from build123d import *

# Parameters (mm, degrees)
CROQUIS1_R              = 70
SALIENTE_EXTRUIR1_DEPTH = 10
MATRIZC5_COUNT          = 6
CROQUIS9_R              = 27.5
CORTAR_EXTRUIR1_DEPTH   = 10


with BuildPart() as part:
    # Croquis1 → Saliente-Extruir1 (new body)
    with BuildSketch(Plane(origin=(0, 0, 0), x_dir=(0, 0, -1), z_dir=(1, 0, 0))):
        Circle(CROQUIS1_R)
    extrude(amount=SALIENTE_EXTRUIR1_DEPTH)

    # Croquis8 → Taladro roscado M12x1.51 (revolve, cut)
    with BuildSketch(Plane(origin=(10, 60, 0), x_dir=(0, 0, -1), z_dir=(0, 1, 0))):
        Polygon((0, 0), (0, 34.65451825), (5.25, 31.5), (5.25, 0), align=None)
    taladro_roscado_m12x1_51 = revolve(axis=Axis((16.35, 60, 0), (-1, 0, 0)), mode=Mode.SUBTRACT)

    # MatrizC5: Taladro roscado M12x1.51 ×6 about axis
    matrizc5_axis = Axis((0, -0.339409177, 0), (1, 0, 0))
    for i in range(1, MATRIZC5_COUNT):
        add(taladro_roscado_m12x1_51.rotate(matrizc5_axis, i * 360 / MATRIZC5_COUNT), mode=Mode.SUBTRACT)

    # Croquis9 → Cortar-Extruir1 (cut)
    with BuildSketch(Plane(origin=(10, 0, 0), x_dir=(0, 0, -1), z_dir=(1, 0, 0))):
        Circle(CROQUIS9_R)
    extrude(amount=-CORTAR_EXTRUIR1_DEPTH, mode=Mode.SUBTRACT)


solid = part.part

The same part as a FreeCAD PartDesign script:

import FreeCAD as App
import Part
import Sketcher
from FreeCAD import Vector
Q = App.Units.Quantity


def add_polygon(sketch, points):
    """Adds a closed chain of lines whose ends are joined by coincident constraints."""
    first, n = sketch.GeometryCount, len(points)
    for a, b in zip(points, points[1:] + points[:1]):
        sketch.addGeometry(Part.LineSegment(App.Vector(*a, 0), App.Vector(*b, 0)), False)
    for i in range(n):
        sketch.addConstraint(Sketcher.Constraint("Coincident", first + i, 2, first + (i + 1) % n, 1))

doc = App.newDocument("Part")
body = doc.addObject("PartDesign::Body", "Body")

# Sketch on YZ plane
sketch1 = doc.addObject("Sketcher::SketchObject", "Sketch")
body.addObject(sketch1)
sketch1.AttachmentSupport = (doc.YZ_Plane, [""])
sketch1.MapMode = "FlatFace"
sketch1.addGeometry(Part.Circle(Vector(0, 0, 0), Vector(0, 0, 1), 70), False)
sketch1.addConstraint(Sketcher.Constraint("Coincident", 0, 3, -1, 1))
sketch1.addConstraint(Sketcher.Constraint("Diameter", 0, Q("140 mm")))
pad1 = doc.addObject("PartDesign::Pad", "Pad")
body.addObject(pad1)
pad1.Profile = sketch1
pad1.Length = 10

# Sketch on XZ plane
sketch2 = doc.addObject("Sketcher::SketchObject", "Sketch001")
body.addObject(sketch2)
sketch2.AttachmentSupport = (doc.XZ_Plane, [""])
sketch2.MapMode = "FlatFace"
sketch2.AttachmentOffset = App.Placement(Vector(0, 0, -60), App.Rotation())
add_polygon(sketch2, [(-25, 0), (10, 0), (10, -5), (-22, -5)])  # lines 0-3
sketch2.addConstraint(Sketcher.Constraint("Horizontal", 0))
sketch2.addConstraint(Sketcher.Constraint("Vertical", 1))
sketch2.addConstraint(Sketcher.Constraint("Horizontal", 2))
sketch2.addConstraint(Sketcher.Constraint("PointOnObject", 0, 2, -1))
sketch2.addConstraint(Sketcher.Constraint("Angle", 3, Q("121 deg")))
sketch2.addConstraint(Sketcher.Constraint("DistanceX", 2, 2, 2, 1, Q("31.5 mm")))
sketch2.addConstraint(Sketcher.Constraint("DistanceX", -1, 1, 0, 2, Q("10 mm")))
sketch2.addConstraint(Sketcher.Constraint("DistanceY", 1, 2, 1, 1, Q("5.25 mm")))
groove = doc.addObject("PartDesign::Groove", "Groove")
body.addObject(groove)
groove.Profile = sketch2
groove.ReferenceAxis = (sketch2, ["H_Axis"])
groove.Angle = 360
doc.recompute()

datumline = doc.addObject("PartDesign::Line", "DatumLine")
body.addObject(datumline)
datumline.Placement = App.Placement(Vector(0, -0.339409, 0), App.Rotation(Vector(0, 0, 1), Vector(1, 0, 0)))
polarpattern = doc.addObject("PartDesign::PolarPattern", "PolarPattern")
body.addObject(polarpattern)
polarpattern.Originals = [groove]
polarpattern.Axis = (datumline, [""])
polarpattern.Angle = 360
polarpattern.Occurrences = 6
body.Tip = polarpattern

# Sketch on YZ plane
sketch3 = doc.addObject("Sketcher::SketchObject", "Sketch002")
body.addObject(sketch3)
sketch3.AttachmentSupport = (doc.YZ_Plane, [""])
sketch3.MapMode = "FlatFace"
sketch3.AttachmentOffset = App.Placement(Vector(0, 0, 10), App.Rotation())
sketch3.addGeometry(Part.Circle(Vector(0, 0, 0), Vector(0, 0, 1), 28), False)
sketch3.addConstraint(Sketcher.Constraint("Coincident", 0, 3, -1, 1))
sketch3.addConstraint(Sketcher.Constraint("Diameter", 0, Q("55 mm")))
pocket1 = doc.addObject("PartDesign::Pocket", "Pocket")
body.addObject(pocket1)
pocket1.Profile = sketch3
pocket1.Length = 10

doc.recompute()
